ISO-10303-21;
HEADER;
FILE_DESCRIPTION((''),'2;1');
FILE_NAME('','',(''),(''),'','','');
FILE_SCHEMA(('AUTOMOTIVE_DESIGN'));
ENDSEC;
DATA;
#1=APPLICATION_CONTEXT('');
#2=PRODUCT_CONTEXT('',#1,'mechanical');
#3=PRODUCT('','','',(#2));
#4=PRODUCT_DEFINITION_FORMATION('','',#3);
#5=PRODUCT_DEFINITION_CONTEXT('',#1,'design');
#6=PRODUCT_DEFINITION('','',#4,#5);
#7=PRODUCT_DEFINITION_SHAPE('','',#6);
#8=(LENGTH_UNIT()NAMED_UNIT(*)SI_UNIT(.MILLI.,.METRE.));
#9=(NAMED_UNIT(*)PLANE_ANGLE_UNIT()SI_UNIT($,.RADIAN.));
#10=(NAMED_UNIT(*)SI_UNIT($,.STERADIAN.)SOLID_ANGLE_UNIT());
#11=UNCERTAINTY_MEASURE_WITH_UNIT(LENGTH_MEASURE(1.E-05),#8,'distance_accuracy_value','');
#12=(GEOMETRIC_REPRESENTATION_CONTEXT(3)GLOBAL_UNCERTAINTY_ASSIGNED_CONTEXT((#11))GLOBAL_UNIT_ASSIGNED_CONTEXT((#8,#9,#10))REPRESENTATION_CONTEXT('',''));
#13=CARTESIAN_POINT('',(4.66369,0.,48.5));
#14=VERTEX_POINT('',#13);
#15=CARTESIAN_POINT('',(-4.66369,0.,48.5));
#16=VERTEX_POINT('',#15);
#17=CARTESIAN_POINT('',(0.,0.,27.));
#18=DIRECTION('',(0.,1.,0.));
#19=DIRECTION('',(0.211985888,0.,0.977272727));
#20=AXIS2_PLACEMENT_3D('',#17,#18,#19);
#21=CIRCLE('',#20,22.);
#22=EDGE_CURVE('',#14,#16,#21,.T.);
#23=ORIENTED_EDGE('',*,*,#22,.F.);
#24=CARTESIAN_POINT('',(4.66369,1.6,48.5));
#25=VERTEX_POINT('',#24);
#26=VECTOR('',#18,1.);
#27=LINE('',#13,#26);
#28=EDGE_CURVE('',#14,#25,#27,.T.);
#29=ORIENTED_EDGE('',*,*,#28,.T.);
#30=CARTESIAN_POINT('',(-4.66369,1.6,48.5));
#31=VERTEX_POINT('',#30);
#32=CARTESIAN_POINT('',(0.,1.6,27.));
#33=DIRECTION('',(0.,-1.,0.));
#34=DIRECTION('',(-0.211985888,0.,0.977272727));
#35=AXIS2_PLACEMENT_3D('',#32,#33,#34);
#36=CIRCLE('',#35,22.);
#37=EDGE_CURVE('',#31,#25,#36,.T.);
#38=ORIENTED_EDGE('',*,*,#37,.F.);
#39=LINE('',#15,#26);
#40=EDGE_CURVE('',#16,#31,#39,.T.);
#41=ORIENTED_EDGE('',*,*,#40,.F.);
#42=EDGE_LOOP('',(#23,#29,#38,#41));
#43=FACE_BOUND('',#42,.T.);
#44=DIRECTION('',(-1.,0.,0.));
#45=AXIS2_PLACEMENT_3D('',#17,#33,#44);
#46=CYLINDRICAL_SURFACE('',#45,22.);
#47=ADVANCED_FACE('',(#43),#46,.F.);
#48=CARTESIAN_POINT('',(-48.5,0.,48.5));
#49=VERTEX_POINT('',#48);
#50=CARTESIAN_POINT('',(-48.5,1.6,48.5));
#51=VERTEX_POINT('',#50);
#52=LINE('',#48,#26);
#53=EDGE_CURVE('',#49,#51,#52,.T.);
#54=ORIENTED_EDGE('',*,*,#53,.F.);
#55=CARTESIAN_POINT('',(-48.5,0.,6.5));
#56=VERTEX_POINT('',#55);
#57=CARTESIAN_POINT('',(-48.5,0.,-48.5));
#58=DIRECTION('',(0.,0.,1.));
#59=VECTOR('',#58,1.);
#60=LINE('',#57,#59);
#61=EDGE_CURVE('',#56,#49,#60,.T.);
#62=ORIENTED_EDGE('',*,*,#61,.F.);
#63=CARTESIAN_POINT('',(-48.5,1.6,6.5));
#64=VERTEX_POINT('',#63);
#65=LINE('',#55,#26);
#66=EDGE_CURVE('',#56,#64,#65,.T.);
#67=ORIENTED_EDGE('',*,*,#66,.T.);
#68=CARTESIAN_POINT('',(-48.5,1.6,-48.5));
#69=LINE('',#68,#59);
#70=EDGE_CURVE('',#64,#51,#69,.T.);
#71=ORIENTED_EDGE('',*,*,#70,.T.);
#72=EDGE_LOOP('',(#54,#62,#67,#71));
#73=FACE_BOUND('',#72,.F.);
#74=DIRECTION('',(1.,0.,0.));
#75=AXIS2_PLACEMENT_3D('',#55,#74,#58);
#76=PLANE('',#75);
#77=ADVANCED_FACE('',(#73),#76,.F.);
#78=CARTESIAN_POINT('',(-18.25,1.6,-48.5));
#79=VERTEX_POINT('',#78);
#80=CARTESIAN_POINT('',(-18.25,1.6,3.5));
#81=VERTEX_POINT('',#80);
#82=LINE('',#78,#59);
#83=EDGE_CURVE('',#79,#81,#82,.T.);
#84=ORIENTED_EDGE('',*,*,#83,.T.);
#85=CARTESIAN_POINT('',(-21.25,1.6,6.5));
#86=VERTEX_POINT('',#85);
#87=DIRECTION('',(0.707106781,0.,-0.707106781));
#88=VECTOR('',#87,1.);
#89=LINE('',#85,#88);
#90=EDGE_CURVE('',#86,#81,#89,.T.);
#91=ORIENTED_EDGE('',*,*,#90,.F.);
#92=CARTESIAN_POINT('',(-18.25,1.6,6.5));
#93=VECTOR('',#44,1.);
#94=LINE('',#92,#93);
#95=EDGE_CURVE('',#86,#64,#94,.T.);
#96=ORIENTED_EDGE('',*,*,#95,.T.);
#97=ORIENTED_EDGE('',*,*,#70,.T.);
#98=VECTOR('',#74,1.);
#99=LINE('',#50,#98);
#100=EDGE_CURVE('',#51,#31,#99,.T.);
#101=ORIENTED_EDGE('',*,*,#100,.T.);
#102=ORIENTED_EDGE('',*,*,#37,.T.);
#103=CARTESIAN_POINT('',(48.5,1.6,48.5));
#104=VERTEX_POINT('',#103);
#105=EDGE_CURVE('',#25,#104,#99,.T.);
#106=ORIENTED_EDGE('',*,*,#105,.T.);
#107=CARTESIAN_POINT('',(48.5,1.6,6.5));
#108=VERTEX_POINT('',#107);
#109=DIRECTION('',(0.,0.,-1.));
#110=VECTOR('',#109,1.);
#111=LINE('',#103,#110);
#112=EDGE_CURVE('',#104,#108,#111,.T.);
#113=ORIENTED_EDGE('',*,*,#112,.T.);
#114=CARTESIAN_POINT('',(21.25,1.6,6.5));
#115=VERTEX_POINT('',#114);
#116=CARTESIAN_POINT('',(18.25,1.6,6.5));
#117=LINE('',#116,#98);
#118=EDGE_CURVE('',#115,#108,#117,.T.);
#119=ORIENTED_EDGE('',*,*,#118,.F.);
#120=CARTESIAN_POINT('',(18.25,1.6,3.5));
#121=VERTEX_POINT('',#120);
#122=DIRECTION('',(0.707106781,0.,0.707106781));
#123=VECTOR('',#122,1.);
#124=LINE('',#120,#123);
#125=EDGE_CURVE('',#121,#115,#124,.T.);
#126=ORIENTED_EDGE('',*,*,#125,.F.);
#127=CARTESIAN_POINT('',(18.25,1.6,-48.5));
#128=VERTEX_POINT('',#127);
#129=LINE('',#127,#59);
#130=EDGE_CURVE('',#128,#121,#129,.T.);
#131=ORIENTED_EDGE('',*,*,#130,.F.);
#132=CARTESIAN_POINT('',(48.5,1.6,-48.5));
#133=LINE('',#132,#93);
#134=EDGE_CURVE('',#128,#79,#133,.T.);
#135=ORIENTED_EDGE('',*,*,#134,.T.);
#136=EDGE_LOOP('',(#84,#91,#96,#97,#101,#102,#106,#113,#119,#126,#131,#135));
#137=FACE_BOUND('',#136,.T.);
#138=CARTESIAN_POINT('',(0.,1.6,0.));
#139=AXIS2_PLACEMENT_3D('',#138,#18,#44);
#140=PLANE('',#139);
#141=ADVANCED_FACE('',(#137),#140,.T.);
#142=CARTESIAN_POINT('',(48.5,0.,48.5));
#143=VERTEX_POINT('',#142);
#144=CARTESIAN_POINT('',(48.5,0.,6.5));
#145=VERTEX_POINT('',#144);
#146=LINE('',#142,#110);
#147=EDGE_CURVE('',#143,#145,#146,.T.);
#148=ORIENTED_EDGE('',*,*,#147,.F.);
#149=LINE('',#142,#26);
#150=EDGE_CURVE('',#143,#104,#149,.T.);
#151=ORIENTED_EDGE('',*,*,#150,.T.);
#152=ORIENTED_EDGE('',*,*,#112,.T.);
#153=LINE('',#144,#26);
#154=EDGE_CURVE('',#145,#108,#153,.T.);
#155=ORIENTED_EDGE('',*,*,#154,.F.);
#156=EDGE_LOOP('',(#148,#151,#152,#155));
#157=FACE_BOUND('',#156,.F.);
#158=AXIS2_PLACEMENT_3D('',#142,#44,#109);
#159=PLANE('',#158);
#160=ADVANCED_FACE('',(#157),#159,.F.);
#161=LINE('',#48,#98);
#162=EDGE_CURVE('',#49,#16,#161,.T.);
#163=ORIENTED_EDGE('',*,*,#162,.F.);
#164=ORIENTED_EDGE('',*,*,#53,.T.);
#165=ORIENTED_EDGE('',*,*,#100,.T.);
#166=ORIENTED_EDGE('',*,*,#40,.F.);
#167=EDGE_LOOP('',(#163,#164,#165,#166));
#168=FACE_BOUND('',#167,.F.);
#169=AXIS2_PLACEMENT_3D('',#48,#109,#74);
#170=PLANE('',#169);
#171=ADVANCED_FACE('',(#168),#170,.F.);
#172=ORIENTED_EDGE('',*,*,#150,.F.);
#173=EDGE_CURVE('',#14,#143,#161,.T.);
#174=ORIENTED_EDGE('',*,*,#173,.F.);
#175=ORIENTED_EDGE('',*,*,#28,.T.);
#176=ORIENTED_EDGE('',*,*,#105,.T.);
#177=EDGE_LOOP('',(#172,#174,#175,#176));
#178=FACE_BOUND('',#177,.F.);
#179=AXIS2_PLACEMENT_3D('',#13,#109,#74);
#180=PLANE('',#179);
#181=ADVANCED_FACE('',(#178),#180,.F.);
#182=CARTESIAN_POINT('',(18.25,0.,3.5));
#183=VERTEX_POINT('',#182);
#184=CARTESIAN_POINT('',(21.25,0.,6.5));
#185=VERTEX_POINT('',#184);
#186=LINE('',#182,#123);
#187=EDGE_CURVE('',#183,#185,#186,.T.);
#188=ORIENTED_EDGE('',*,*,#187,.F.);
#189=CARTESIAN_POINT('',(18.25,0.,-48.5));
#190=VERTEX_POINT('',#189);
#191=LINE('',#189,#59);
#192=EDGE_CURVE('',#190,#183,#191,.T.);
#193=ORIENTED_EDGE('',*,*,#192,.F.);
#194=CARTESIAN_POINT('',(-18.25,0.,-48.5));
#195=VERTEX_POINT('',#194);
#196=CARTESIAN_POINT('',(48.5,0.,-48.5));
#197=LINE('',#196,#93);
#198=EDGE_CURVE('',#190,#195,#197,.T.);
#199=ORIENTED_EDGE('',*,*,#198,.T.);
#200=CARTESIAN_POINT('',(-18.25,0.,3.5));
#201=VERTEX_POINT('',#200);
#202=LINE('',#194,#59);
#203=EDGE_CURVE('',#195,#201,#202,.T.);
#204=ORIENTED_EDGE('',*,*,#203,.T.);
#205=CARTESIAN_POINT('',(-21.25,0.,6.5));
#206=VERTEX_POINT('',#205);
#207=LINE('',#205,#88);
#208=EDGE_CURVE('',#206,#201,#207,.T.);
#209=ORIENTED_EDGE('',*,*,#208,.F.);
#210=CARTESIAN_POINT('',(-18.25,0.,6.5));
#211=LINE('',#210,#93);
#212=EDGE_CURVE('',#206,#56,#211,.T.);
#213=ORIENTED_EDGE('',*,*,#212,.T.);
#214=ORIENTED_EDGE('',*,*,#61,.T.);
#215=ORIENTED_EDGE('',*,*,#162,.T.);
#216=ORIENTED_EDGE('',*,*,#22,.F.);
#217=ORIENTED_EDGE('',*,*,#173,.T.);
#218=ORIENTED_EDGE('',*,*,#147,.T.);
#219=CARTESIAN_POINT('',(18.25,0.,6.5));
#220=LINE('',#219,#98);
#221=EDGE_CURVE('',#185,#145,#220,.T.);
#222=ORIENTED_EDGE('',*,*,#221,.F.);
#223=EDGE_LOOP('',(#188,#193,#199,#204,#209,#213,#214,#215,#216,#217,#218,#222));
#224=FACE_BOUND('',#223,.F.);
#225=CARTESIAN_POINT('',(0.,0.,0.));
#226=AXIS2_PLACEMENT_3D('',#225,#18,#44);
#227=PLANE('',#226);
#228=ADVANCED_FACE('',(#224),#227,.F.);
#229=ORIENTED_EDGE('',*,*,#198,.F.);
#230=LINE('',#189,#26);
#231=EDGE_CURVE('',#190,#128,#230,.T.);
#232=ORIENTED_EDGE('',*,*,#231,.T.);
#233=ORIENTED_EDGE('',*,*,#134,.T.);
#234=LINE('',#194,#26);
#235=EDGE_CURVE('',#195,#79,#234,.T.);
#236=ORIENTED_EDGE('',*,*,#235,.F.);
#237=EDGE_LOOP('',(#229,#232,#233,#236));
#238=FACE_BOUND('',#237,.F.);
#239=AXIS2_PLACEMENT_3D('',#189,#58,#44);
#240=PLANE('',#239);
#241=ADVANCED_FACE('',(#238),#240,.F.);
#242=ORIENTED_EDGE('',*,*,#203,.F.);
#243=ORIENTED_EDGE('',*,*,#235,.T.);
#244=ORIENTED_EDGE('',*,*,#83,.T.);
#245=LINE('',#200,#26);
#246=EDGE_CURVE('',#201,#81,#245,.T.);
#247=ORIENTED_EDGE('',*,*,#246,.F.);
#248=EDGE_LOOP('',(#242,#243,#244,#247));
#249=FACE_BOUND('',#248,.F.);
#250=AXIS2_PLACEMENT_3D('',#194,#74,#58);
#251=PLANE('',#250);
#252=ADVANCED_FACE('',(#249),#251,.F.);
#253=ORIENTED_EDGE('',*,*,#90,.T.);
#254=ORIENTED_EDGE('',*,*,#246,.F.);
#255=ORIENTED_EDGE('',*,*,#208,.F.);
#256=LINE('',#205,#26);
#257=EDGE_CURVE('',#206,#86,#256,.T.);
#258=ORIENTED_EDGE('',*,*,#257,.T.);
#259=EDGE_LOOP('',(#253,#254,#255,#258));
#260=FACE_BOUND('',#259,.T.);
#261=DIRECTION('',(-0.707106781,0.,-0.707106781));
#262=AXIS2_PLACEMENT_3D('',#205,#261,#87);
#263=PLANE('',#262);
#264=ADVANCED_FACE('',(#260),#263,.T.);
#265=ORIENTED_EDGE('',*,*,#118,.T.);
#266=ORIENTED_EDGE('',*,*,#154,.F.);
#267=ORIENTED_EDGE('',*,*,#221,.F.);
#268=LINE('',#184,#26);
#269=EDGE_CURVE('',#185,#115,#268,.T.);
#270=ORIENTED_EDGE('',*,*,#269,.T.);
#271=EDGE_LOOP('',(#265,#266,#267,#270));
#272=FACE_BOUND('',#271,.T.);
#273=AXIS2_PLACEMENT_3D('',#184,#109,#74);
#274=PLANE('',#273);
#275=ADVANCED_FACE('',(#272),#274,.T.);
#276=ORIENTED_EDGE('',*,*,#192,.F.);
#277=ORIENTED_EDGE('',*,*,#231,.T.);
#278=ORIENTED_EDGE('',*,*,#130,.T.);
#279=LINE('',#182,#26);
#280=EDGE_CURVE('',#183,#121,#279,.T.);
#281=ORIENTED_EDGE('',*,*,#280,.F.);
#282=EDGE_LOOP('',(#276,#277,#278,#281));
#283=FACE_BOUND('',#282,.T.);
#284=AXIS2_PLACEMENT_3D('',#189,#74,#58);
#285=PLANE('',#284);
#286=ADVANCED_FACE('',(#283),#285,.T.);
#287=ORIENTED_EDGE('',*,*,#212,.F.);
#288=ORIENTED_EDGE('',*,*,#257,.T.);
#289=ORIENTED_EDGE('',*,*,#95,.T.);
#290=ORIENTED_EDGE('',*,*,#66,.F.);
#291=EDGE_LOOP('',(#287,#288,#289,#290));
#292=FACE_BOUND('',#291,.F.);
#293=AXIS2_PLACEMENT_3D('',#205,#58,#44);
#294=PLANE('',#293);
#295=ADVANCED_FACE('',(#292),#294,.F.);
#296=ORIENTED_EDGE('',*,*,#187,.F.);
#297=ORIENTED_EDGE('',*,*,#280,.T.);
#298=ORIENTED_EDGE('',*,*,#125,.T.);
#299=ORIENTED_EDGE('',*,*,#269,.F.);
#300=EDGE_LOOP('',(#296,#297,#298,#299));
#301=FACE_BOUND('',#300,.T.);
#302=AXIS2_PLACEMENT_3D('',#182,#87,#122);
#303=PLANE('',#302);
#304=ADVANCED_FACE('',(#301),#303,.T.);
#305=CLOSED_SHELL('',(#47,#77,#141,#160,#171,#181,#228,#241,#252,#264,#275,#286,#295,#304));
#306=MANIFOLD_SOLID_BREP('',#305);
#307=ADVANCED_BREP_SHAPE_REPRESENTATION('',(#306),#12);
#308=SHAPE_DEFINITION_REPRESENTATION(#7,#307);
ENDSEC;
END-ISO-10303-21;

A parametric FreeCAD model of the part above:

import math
import FreeCAD as App
import Part
import Sketcher
Q = App.Units.Quantity

doc = App.newDocument("Part")
params = doc.addObject("Spreadsheet::Sheet", "Params")
for row, (alias, value) in enumerate([
    ("sketch1_radius", "22 mm"),
    ("pad1_length", "1.6 mm"),
], start=1):
    params.set(f"A{row}", alias)
    params.set(f"B{row}", "=" + value)
    params.setAlias(f"B{row}", alias)

body = doc.addObject("PartDesign::Body", "Body")

sketch1 = body.newObject("Sketcher::SketchObject", "Sketch")
sketch1.AttachmentSupport = (doc.getObject("XZ_Plane"), [""])
sketch1.MapMode = "FlatFace"
sketch1.addGeometry([
    Part.LineSegment(App.Vector(-48.5, 6.5, 0), App.Vector(-48.5, 48.5, 0)),
    Part.LineSegment(App.Vector(-48.5, 48.5, 0), App.Vector(-4.66369, 48.5, 0)),
    Part.ArcOfCircle(Part.Circle(App.Vector(0, 27, 0), App.Vector(0, 0, 1), 22), math.radians(102.238756), math.radians(437.761244)),
    Part.LineSegment(App.Vector(4.66369, 48.5, 0), App.Vector(48.5, 48.5, 0)),
    Part.LineSegment(App.Vector(48.5, 48.5, 0), App.Vector(48.5, 6.5, 0)),
    Part.LineSegment(App.Vector(48.5, 6.5, 0), App.Vector(21.25, 6.5, 0)),
    Part.LineSegment(App.Vector(21.25, 6.5, 0), App.Vector(18.25, 3.5, 0)),
    Part.LineSegment(App.Vector(18.25, 3.5, 0), App.Vector(18.25, -48.5, 0)),
    Part.LineSegment(App.Vector(18.25, -48.5, 0), App.Vector(-18.25, -48.5, 0)),
    Part.LineSegment(App.Vector(-18.25, -48.5, 0), App.Vector(-18.25, 3.5, 0)),
    Part.LineSegment(App.Vector(-18.25, 3.5, 0), App.Vector(-21.25, 6.5, 0)),
    Part.LineSegment(App.Vector(-21.25, 6.5, 0), App.Vector(-48.5, 6.5, 0)),
], False)
sketch1.addConstraint([
    Sketcher.Constraint("Coincident", 0, 2, 1, 1),
    Sketcher.Constraint("Coincident", 1, 2, 2, 1),
    Sketcher.Constraint("Coincident", 2, 2, 3, 1),
    Sketcher.Constraint("Coincident", 3, 2, 4, 1),
    Sketcher.Constraint("Coincident", 4, 2, 5, 1),
    Sketcher.Constraint("Coincident", 5, 2, 6, 1),
    Sketcher.Constraint("Coincident", 6, 2, 7, 1),
    Sketcher.Constraint("Coincident", 7, 2, 8, 1),
    Sketcher.Constraint("Coincident", 8, 2, 9, 1),
    Sketcher.Constraint("Coincident", 9, 2, 10, 1),
    Sketcher.Constraint("Coincident", 10, 2, 11, 1),
    Sketcher.Constraint("Coincident", 11, 2, 0, 1),
    Sketcher.Constraint("Vertical", 0),
    Sketcher.Constraint("Horizontal", 1),
    Sketcher.Constraint("Horizontal", 3),
    Sketcher.Constraint("Vertical", 4),
    Sketcher.Constraint("Horizontal", 5),
    Sketcher.Constraint("Vertical", 7),
    Sketcher.Constraint("Horizontal", 8),
    Sketcher.Constraint("Vertical", 9),
    Sketcher.Constraint("Horizontal", 11),
    Sketcher.Constraint("Symmetric", 1, 2, 2, 2, -2),
    Sketcher.Constraint("Symmetric", 6, 2, 9, 2, -2),
    Sketcher.Constraint("Symmetric", 5, 2, 10, 2, -2),
    Sketcher.Constraint("Perpendicular", 6, 10),
    Sketcher.Constraint("Equal", 1, 3),
    Sketcher.Constraint("Radius", 2, Q("22 mm")),
    Sketcher.Constraint("DistanceY", -1, 1, 2, 3, Q("27 mm")),
    Sketcher.Constraint("DistanceX", 0, 2, 3, 2, Q("97 mm")),
    Sketcher.Constraint("DistanceX", 6, 2, 5, 2, Q("3 mm")),
    Sketcher.Constraint("DistanceY", 6, 2, 2, 2, Q("45 mm")),
    Sketcher.Constraint("DistanceY", 7, 2, 5, 2, Q("55 mm")),
    Sketcher.Constraint("DistanceY", -1, 1, 0, 2, Q("48.5 mm")),
    Sketcher.Constraint("DistanceX", 6, 2, 4, 2, Q("30.25 mm")),
])
sketch1.setExpression("Constraints[26]", "Params.sketch1_radius")
pad1 = body.newObject("PartDesign::Pad", "Pad")
pad1.Profile = sketch1
pad1.setExpression("Length", "Params.pad1_length")
pad1.Reversed = True

doc.recompute()
